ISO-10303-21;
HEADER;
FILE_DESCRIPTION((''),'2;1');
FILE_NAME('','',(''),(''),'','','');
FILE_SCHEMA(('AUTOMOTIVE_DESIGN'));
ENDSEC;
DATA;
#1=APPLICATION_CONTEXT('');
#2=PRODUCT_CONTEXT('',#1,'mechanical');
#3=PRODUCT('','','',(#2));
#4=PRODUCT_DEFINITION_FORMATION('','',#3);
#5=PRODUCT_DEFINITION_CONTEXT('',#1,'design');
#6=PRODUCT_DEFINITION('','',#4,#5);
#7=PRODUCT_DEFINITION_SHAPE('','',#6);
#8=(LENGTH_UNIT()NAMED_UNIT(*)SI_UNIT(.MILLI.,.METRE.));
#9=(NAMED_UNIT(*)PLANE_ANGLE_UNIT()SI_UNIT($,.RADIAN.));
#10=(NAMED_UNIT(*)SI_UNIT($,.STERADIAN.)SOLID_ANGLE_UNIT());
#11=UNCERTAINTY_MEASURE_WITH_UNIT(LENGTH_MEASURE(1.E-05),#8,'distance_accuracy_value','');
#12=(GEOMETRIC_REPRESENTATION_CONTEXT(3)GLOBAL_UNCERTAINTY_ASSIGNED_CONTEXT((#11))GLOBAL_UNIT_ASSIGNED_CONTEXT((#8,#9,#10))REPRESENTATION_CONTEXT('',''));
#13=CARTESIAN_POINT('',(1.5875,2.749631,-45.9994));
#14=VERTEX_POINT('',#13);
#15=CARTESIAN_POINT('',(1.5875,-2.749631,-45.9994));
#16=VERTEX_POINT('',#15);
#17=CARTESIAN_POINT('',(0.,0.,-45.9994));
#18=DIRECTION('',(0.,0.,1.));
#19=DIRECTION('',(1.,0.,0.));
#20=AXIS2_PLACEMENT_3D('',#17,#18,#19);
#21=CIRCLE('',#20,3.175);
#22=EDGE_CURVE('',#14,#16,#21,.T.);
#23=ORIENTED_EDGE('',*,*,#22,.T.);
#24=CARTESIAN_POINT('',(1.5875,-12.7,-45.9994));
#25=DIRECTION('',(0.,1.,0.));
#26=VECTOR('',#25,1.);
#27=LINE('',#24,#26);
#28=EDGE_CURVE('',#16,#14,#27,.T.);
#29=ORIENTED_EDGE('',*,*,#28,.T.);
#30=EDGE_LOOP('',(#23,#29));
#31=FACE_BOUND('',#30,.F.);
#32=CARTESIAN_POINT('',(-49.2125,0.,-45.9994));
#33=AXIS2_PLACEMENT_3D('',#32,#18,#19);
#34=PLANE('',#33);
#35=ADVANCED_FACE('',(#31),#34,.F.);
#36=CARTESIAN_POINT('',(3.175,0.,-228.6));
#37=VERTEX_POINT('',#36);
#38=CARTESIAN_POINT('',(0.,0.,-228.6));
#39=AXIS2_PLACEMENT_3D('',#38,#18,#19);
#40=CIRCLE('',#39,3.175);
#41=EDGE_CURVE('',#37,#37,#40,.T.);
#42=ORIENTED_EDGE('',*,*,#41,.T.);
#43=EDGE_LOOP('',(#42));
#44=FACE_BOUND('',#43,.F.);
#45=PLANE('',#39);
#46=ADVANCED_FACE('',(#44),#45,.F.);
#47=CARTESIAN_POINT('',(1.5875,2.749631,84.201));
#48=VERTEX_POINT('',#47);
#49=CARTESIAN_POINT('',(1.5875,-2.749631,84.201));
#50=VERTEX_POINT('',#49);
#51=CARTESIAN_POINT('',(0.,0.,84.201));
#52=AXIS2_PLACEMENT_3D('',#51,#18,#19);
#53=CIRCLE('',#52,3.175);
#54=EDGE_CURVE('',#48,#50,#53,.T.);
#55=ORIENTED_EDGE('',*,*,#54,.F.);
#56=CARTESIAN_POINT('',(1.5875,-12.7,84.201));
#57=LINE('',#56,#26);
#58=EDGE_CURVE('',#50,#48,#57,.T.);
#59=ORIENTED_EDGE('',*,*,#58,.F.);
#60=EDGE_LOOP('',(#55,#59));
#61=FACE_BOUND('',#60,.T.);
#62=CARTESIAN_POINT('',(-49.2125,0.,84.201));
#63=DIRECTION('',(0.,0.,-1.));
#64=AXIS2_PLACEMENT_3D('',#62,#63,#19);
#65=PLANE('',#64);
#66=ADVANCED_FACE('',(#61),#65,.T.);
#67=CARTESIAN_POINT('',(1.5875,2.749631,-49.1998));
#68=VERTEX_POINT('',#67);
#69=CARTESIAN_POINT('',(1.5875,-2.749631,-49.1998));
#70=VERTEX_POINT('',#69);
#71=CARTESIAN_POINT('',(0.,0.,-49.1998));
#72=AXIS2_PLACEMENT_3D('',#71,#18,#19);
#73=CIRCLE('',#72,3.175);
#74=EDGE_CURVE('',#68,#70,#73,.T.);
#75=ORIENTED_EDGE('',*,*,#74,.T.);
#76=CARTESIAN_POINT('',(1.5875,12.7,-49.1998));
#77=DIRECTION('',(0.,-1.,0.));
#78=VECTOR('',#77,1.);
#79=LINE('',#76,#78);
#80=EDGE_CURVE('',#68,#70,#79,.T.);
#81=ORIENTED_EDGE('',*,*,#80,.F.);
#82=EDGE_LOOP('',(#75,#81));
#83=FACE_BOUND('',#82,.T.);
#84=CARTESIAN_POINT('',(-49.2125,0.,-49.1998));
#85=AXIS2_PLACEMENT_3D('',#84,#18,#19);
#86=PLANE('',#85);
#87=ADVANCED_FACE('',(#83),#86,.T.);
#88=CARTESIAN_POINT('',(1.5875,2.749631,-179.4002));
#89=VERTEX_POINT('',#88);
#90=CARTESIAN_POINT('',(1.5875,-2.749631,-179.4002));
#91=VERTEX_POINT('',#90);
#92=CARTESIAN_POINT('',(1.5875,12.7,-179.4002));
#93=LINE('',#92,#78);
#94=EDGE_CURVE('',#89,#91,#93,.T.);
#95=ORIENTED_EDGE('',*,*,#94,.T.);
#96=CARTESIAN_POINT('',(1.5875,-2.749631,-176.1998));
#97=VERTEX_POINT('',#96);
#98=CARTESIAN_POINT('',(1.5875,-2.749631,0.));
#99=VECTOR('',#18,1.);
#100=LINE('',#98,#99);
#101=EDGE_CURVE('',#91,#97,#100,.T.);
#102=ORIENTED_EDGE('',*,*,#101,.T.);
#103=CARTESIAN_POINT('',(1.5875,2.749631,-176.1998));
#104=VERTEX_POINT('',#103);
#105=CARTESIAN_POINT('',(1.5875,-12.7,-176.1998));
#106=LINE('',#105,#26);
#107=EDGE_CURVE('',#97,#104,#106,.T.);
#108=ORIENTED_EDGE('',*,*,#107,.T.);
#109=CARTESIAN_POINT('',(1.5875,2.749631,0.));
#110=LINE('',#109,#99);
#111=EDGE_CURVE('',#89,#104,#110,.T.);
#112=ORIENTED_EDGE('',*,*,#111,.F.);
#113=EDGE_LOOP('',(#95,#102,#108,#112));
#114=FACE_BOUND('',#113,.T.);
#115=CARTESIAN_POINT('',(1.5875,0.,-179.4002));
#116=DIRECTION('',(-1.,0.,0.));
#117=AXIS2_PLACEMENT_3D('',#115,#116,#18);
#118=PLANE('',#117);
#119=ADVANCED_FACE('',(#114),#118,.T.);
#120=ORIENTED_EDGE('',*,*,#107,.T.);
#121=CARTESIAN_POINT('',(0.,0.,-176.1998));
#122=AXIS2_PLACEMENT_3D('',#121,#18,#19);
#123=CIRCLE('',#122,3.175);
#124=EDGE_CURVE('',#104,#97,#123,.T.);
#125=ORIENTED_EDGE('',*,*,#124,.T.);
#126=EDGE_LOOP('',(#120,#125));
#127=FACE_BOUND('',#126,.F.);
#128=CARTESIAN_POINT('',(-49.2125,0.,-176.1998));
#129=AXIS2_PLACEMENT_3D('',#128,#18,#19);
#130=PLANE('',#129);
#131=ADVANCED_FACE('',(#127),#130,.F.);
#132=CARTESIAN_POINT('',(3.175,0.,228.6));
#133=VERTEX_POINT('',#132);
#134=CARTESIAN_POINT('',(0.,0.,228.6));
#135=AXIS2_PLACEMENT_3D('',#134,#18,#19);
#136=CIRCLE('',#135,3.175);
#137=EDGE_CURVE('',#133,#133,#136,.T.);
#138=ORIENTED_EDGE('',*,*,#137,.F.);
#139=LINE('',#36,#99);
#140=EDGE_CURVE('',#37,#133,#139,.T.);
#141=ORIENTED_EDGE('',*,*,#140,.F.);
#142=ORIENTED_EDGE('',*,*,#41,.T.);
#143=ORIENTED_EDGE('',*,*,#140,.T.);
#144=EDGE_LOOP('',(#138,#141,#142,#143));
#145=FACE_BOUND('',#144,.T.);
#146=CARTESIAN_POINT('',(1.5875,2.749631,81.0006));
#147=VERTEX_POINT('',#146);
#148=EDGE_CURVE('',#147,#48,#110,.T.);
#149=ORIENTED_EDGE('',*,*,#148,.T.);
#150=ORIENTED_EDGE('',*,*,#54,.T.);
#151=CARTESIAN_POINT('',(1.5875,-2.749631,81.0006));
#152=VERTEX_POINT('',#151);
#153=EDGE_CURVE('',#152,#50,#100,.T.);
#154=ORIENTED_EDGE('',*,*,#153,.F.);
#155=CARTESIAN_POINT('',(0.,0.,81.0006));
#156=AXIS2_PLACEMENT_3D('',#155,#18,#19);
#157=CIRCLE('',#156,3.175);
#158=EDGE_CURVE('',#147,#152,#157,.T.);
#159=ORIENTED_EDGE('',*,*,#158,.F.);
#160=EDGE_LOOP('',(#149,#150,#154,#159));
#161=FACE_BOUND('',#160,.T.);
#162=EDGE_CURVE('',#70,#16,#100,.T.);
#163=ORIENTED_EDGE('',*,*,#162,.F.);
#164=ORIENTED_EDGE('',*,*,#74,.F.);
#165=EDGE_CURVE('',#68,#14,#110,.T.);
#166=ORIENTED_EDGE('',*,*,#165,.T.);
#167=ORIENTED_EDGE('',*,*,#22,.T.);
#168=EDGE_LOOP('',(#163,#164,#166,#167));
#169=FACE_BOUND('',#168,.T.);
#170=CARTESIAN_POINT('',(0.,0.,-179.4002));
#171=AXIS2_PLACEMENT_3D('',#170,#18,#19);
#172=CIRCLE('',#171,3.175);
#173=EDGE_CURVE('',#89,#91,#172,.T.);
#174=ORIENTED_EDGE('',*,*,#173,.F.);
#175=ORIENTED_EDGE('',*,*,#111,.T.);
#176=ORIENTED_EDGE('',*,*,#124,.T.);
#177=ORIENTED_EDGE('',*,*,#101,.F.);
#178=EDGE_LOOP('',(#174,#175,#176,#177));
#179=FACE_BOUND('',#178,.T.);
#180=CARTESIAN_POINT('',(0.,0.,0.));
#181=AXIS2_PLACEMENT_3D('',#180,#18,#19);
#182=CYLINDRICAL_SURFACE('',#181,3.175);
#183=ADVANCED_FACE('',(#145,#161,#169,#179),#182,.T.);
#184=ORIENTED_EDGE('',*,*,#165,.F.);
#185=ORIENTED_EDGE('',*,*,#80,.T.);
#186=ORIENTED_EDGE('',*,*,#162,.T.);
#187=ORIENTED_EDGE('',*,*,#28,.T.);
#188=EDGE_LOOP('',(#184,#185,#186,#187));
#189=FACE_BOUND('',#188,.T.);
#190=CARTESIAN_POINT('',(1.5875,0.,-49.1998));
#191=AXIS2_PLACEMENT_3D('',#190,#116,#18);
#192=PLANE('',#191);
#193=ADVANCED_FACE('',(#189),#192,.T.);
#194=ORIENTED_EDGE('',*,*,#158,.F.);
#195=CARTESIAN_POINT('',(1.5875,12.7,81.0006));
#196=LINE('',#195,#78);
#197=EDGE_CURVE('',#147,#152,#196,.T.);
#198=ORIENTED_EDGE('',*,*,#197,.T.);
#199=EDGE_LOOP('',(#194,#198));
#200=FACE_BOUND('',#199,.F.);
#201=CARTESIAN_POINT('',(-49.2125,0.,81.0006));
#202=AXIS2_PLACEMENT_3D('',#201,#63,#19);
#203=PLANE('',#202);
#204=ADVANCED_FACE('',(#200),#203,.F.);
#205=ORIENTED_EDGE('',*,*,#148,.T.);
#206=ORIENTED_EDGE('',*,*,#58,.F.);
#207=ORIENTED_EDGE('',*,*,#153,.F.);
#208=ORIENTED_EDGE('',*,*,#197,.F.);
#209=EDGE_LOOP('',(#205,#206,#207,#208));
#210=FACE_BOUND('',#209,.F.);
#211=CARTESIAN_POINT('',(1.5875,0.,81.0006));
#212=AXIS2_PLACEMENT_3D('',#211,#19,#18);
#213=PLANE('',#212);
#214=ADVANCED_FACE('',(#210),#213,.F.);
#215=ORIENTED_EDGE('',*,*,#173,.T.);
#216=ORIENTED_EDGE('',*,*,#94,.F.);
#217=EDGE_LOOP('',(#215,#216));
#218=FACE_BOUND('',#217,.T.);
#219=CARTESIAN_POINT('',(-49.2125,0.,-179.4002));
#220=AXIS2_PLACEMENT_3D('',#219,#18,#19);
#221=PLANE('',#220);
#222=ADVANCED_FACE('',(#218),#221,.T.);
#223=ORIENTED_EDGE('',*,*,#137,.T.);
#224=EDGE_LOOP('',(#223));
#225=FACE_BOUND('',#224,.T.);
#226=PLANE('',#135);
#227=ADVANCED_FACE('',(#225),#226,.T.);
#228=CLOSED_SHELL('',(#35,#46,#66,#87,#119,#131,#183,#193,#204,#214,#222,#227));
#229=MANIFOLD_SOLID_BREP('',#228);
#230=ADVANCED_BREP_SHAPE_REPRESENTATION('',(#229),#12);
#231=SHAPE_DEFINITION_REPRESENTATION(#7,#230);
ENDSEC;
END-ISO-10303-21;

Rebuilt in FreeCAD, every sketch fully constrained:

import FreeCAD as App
import Part
import Sketcher
Q = App.Units.Quantity

doc = App.newDocument("Part")
params = doc.addObject("Spreadsheet::Sheet", "Params")
for row, (alias, value) in enumerate([
    ("sketch1_diameter", "0.25 in"),
    ("pad1_length", "18 in"),
    ("sketch2_width", "2 in"),
    ("sketch2_height", "0.126 in"),
    ("pocket1_length", "1 in"),
], start=1):
    params.set(f"A{row}", alias)
    params.set(f"B{row}", "=" + value)
    params.setAlias(f"B{row}", alias)

body = doc.addObject("PartDesign::Body", "Body")

sketch1 = body.newObject("Sketcher::SketchObject", "Sketch")
sketch1.AttachmentSupport = (doc.getObject("XY_Plane"), [""])
sketch1.MapMode = "FlatFace"
sketch1.addGeometry(Part.Circle(App.Vector(0, 0, 0), App.Vector(0, 0, 1), 3.2), False)
sketch1.addConstraint(Sketcher.Constraint("Coincident", 0, 3, -1, 1))
sketch1.addConstraint(Sketcher.Constraint("Diameter", 0, Q("0.25 in")))
sketch1.setExpression("Constraints[1]", "Params.sketch1_diameter")
pad1 = body.newObject("PartDesign::Pad", "Pad")
pad1.Profile = sketch1
pad1.setExpression("Length", "Params.pad1_length")
pad1.Midplane = True

sketch2 = body.newObject("Sketcher::SketchObject", "Sketch001")
sketch2.AttachmentSupport = (doc.getObject("XZ_Plane"), [""])
sketch2.MapMode = "FlatFace"
sketch2.addGeometry(Part.LineSegment(App.Vector(-49.2, -176.2, 0), App.Vector(-49.2, -179.4, 0)), False)
sketch2.addGeometry(Part.LineSegment(App.Vector(-49.2, -179.4, 0), App.Vector(1.6, -179.4, 0)), False)
sketch2.addGeometry(Part.LineSegment(App.Vector(1.6, -179.4, 0), App.Vector(1.6, -176.2, 0)), False)
sketch2.addGeometry(Part.LineSegment(App.Vector(1.6, -176.2, 0), App.Vector(-49.2, -176.2, 0)), False)
sketch2.addGeometry(Part.LineSegment(App.Vector(-49.2, -46, 0), App.Vector(-49.2, -49.2, 0)), False)
sketch2.addGeometry(Part.LineSegment(App.Vector(-49.2, -49.2, 0), App.Vector(1.6, -49.2, 0)), False)
sketch2.addGeometry(Part.LineSegment(App.Vector(1.6, -49.2, 0), App.Vector(1.6, -46, 0)), False)
sketch2.addGeometry(Part.LineSegment(App.Vector(1.6, -46, 0), App.Vector(-49.2, -46, 0)), False)
sketch2.addGeometry(Part.LineSegment(App.Vector(-49.2, 84.2, 0), App.Vector(-49.2, 81, 0)), False)
sketch2.addGeometry(Part.LineSegment(App.Vector(-49.2, 81, 0), App.Vector(1.6, 81, 0)), False)
sketch2.addGeometry(Part.LineSegment(App.Vector(1.6, 81, 0), App.Vector(1.6, 84.2, 0)), False)
sketch2.addGeometry(Part.LineSegment(App.Vector(1.6, 84.2, 0), App.Vector(-49.2, 84.2, 0)), False)
sketch2.addConstraint(Sketcher.Constraint("Coincident", 0, 2, 1, 1))
sketch2.addConstraint(Sketcher.Constraint("Coincident", 1, 2, 2, 1))
sketch2.addConstraint(Sketcher.Constraint("Coincident", 2, 2, 3, 1))
sketch2.addConstraint(Sketcher.Constraint("Coincident", 3, 2, 0, 1))
sketch2.addConstraint(Sketcher.Constraint("Coincident", 4, 2, 5, 1))
sketch2.addConstraint(Sketcher.Constraint("Coincident", 5, 2, 6, 1))
sketch2.addConstraint(Sketcher.Constraint("Coincident", 6, 2, 7, 1))
sketch2.addConstraint(Sketcher.Constraint("Coincident", 7, 2, 4, 1))
sketch2.addConstraint(Sketcher.Constraint("Coincident", 8, 2, 9, 1))
sketch2.addConstraint(Sketcher.Constraint("Coincident", 9, 2, 10, 1))
sketch2.addConstraint(Sketcher.Constraint("Coincident", 10, 2, 11, 1))
sketch2.addConstraint(Sketcher.Constraint("Coincident", 11, 2, 8, 1))
sketch2.addConstraint(Sketcher.Constraint("Vertical", 0))
sketch2.addConstraint(Sketcher.Constraint("Horizontal", 1))
sketch2.addConstraint(Sketcher.Constraint("Vertical", 2))
sketch2.addConstraint(Sketcher.Constraint("Horizontal", 3))
sketch2.addConstraint(Sketcher.Constraint("Vertical", 4))
sketch2.addConstraint(Sketcher.Constraint("Horizontal", 5))
sketch2.addConstraint(Sketcher.Constraint("Vertical", 6))
sketch2.addConstraint(Sketcher.Constraint("Horizontal", 7))
sketch2.addConstraint(Sketcher.Constraint("Vertical", 8))
sketch2.addConstraint(Sketcher.Constraint("Horizontal", 9))
sketch2.addConstraint(Sketcher.Constraint("Vertical", 10))
sketch2.addConstraint(Sketcher.Constraint("Horizontal", 11))
sketch2.addConstraint(Sketcher.Constraint("Vertical", 3, 2, 4, 2))
sketch2.addConstraint(Sketcher.Constraint("Vertical", 2, 2, 5, 2))
sketch2.addConstraint(Sketcher.Constraint("Vertical", 7, 2, 8, 2))
sketch2.addConstraint(Sketcher.Constraint("Vertical", 6, 2, 9, 2))
sketch2.addConstraint(Sketcher.Constraint("Equal", 2, 4))
sketch2.addConstraint(Sketcher.Constraint("Equal", 6, 8))
sketch2.addConstraint(Sketcher.Constraint("DistanceX", 1, 1, 1, 2, Q("2 in")))
sketch2.addConstraint(Sketcher.Constraint("DistanceY", 3, 2, 4, 2, Q("5 in")))
sketch2.addConstraint(Sketcher.Constraint("DistanceY", 7, 2, 8, 2, Q("5 in")))
sketch2.addConstraint(Sketcher.Constraint("DistanceY", 0, 2, 0, 1, Q("0.126 in")))
sketch2.addConstraint(Sketcher.Constraint("DistanceX", 0, 2, -1, 1, Q("1.9375 in")))
sketch2.addConstraint(Sketcher.Constraint("DistanceY", 0, 2, -1, 1, Q("7.063 in")))
sketch2.setExpression("Constraints[30]", "Params.sketch2_width")
sketch2.setExpression("Constraints[33]", "Params.sketch2_height")
pocket1 = body.newObject("PartDesign::Pocket", "Pocket")
pocket1.Profile = sketch2
pocket1.setExpression("Length", "Params.pocket1_length")
pocket1.Midplane = True

doc.recompute()
